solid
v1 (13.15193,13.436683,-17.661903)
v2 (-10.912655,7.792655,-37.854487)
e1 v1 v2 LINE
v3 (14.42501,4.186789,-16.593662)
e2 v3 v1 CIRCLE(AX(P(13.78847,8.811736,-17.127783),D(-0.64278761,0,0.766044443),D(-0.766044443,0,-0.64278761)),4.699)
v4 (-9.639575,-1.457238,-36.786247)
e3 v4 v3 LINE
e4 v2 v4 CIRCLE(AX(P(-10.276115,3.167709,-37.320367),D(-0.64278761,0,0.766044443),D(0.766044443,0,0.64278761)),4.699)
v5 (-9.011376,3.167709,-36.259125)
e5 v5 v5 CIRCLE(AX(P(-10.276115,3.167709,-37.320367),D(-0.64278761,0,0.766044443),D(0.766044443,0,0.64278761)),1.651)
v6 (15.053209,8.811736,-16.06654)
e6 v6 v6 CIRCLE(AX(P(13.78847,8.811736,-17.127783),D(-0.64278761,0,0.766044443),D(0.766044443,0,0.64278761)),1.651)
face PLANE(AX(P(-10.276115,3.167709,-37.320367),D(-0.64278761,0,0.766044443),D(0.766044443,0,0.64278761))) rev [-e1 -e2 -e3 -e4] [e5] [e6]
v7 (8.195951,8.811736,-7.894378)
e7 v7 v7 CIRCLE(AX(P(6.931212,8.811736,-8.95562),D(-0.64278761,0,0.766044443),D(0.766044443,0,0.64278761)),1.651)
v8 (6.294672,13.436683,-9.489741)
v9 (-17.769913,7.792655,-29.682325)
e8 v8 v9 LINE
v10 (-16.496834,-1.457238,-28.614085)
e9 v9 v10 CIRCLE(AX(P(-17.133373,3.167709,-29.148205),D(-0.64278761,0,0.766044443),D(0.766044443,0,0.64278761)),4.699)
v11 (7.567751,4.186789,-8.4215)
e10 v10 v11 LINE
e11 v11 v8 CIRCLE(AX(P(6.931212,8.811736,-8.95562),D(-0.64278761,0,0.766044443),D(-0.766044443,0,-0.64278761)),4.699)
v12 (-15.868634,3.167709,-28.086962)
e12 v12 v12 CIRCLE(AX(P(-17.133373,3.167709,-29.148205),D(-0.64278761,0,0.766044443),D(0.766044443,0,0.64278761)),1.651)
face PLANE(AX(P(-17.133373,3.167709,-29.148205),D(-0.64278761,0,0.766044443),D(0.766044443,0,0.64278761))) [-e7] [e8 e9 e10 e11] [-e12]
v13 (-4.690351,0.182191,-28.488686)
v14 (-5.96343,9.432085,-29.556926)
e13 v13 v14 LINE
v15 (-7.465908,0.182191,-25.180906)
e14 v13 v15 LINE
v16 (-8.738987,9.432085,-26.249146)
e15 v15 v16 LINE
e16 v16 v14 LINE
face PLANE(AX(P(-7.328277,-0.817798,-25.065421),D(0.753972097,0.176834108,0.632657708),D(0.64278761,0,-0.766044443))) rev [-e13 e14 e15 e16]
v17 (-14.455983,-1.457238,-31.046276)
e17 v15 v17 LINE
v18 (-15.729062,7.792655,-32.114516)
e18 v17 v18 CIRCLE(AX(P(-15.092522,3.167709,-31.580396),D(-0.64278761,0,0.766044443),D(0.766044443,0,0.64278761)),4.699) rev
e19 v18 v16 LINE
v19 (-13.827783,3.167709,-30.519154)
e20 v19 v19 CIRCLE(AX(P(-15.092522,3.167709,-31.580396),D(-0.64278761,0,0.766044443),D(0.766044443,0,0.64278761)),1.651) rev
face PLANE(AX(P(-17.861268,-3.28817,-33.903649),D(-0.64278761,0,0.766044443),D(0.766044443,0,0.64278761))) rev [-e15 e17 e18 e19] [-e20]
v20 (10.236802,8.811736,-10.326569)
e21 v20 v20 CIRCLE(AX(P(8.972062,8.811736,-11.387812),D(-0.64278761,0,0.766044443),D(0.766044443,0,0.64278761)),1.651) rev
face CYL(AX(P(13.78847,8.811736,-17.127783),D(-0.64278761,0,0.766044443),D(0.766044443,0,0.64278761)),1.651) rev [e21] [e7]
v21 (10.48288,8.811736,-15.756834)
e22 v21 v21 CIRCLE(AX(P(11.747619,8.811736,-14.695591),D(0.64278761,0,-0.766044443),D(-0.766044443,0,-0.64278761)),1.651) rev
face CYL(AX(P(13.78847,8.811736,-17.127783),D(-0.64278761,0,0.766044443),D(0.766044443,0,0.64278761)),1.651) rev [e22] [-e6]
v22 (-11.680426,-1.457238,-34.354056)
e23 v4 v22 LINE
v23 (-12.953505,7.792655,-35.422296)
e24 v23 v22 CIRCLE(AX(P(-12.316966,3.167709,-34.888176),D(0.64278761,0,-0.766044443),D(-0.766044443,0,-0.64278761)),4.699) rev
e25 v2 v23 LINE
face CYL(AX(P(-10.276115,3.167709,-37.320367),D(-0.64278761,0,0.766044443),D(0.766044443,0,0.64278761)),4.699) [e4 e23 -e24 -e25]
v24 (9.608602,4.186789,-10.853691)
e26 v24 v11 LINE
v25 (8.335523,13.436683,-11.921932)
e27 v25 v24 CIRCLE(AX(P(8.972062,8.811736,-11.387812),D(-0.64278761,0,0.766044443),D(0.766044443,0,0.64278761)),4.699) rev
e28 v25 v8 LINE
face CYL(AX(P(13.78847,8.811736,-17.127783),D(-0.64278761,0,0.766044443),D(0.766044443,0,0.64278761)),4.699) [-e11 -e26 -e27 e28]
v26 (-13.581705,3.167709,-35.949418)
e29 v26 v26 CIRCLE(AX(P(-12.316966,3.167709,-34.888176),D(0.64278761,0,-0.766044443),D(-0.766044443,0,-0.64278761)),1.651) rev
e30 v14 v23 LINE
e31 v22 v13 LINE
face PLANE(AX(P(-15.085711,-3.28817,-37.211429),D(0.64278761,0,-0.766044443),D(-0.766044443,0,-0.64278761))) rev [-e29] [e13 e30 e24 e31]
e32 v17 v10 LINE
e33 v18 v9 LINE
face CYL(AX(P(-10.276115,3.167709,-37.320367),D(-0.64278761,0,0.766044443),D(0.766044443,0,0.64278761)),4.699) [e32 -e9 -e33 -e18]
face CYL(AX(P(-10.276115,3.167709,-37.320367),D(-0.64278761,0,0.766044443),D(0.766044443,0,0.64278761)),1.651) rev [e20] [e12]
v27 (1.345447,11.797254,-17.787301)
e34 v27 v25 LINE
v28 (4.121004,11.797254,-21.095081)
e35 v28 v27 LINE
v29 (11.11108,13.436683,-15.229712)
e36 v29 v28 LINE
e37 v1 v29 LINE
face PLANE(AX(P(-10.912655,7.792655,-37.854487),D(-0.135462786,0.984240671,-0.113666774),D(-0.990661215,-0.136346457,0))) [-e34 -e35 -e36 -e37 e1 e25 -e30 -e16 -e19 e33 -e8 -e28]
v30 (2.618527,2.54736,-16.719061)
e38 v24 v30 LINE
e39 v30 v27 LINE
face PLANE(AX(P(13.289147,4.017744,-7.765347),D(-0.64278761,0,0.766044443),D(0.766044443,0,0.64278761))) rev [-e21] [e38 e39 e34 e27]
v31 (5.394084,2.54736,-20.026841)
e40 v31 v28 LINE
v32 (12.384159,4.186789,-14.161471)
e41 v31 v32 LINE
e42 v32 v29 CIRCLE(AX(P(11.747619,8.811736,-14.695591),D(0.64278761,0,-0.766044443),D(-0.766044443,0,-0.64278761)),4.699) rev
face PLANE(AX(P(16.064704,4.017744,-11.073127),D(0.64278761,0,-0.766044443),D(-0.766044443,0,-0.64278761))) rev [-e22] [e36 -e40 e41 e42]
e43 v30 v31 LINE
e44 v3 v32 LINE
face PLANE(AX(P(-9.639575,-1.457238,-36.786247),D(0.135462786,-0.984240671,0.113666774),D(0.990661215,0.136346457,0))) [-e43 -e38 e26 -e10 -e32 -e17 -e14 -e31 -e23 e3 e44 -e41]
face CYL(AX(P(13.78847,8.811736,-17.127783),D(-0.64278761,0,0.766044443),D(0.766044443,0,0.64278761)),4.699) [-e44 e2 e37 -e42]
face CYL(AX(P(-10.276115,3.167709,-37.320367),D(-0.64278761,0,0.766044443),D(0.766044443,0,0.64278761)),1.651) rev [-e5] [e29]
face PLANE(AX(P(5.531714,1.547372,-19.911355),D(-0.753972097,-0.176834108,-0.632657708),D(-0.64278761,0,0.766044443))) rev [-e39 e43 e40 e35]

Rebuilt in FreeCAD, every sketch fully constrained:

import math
import FreeCAD as App
import Part
import Sketcher
Q = App.Units.Quantity


def add_polygon(sketch, points):
    """Adds a closed chain of lines whose ends are joined by coincident constraints."""
    first, n = sketch.GeometryCount, len(points)
    for a, b in zip(points, points[1:] + points[:1]):
        sketch.addGeometry(Part.LineSegment(App.Vector(*a, 0), App.Vector(*b, 0)), False)
    for i in range(n):
        sketch.addConstraint(Sketcher.Constraint("Coincident", first + i, 2, first + (i + 1) % n, 1))

doc = App.newDocument("Part")
body = doc.addObject("PartDesign::Body", "Body")

# Sketch on an angled plane
sketch1 = doc.addObject("Sketcher::SketchObject", "Sketch")
body.addObject(sketch1)
sketch1.Placement = App.Placement(App.Vector(10.702221, 0, -12.75441), App.Rotation(App.Vector(0.766044443, 0, 0.64278761), App.Vector(0, 1, 0), App.Vector(-0.64278761, 0, 0.766044443), "ZXY"))
sketch1.addGeometry(Part.LineSegment(App.Vector(-1.3, 13.4, 0), App.Vector(-32.7, 7.8, 0)), False)
sketch1.addGeometry(Part.ArcOfCircle(Part.Circle(App.Vector(-31.9, 3.2, 0), App.Vector(0, 0, 1), 4.7), math.radians(100), math.radians(280)), False)
sketch1.addGeometry(Part.LineSegment(App.Vector(-31, -1.5, 0), App.Vector(0.4, 4.2, 0)), False)
sketch1.addGeometry(Part.ArcOfCircle(Part.Circle(App.Vector(-0.4, 8.8, 0), App.Vector(0, 0, 1), 4.7), math.radians(-80), math.radians(100)), False)
sketch1.addGeometry(Part.Circle(App.Vector(-31.9, 3.2, 0), App.Vector(0, 0, 1), 1.7), False)
sketch1.addGeometry(Part.Circle(App.Vector(-0.4, 8.8, 0), App.Vector(0, 0, 1), 1.7), False)
sketch1.addConstraint(Sketcher.Constraint("Tangent", 0, 2, 1, 1))
sketch1.addConstraint(Sketcher.Constraint("Tangent", 1, 2, 2, 1))
sketch1.addConstraint(Sketcher.Constraint("Tangent", 2, 2, 3, 1))
sketch1.addConstraint(Sketcher.Constraint("Tangent", 3, 2, 0, 1))
sketch1.addConstraint(Sketcher.Constraint("Coincident", 4, 3, 1, 3))
sketch1.addConstraint(Sketcher.Constraint("Coincident", 5, 3, 3, 3))
sketch1.addConstraint(Sketcher.Constraint("Equal", 1, 3))
sketch1.addConstraint(Sketcher.Constraint("Equal", 4, 5))
sketch1.addConstraint(Sketcher.Constraint("Diameter", 4, Q("0.13 in")))
sketch1.addConstraint(Sketcher.Constraint("Radius", 1, Q("0.185 in")))
sketch1.addConstraint(Sketcher.Constraint("DistanceX", 1, 3, -1, 1, Q("31.86103 mm")))
sketch1.addConstraint(Sketcher.Constraint("DistanceY", -1, 1, 1, 3, Q("3.167709 mm")))
sketch1.addConstraint(Sketcher.Constraint("DistanceY", 1, 2, -1, 1, Q("1.457238 mm")))
sketch1.addConstraint(Sketcher.Constraint("DistanceY", -1, 1, 2, 2, Q("4.186789 mm")))
pad1 = doc.addObject("PartDesign::Pad", "Pad")
body.addObject(pad1)
pad1.Profile = sketch1
pad1.Type = "TwoLengths"
pad1.Length = Q("0.21 in")
pad1.Length2 = Q("0.21 in")

# Sketch on an angled plane
sketch2 = doc.addObject("Sketcher::SketchObject", "Sketch001")
body.addObject(sketch2)
sketch2.Placement = App.Placement(App.Vector(-1.822097, 13.238927, -1.528921), App.Rotation(App.Vector(0.990782435, 0.134568376, -0.015540867), App.Vector(0, -0.114724252, -0.993397376), App.Vector(-0.135462786, 0.984240671, -0.113666774), "ZXY"))
add_polygon(sketch2, [(-17.6, 34.1), (-7, 25), (-4.2, 28.3), (-14.8, 37.3)])  # lines 0-3
add_polygon(sketch2, [(16.6, 10.5), (6, 19.6), (3.2, 16.3), (13.8, 7.3)])  # lines 4-7
sketch2.addConstraint(Sketcher.Constraint("Perpendicular", 0, 1))
sketch2.addConstraint(Sketcher.Constraint("Perpendicular", 1, 2))
sketch2.addConstraint(Sketcher.Constraint("Perpendicular", 2, 3))
sketch2.addConstraint(Sketcher.Constraint("Perpendicular", 3, 4))
sketch2.addConstraint(Sketcher.Constraint("Perpendicular", 4, 5))
sketch2.addConstraint(Sketcher.Constraint("Perpendicular", 5, 6))
sketch2.addConstraint(Sketcher.Constraint("Perpendicular", 6, 7))
sketch2.addConstraint(Sketcher.Constraint("Equal", 2, 4))
sketch2.addConstraint(Sketcher.Constraint("Equal", 3, 5))
sketch2.addConstraint(Sketcher.Constraint("Distance", 0, Q("0.55 in")))
sketch2.addConstraint(Sketcher.Constraint("Distance", 1, Q("0.17 in")))
sketch2.addConstraint(Sketcher.Constraint("DistanceY", 4, 2, 2, 2, Q("17.740601 mm")))
sketch2.addConstraint(Sketcher.Constraint("DistanceX", 0, 2, -1, 1, Q("6.98124 mm")))
sketch2.addConstraint(Sketcher.Constraint("DistanceX", 1, 2, -1, 1, Q("4.179861 mm")))
sketch2.addConstraint(Sketcher.Constraint("DistanceY", -1, 1, 2, 2, Q("37.342969 mm")))
sketch2.addConstraint(Sketcher.Constraint("DistanceX", -1, 1, 4, 2, Q("5.998392 mm")))
pocket1 = doc.addObject("PartDesign::Pocket", "Pocket")
body.addObject(pocket1)
pocket1.Profile = sketch2
pocket1.Length = Q("0.41 in")

doc.recompute()
